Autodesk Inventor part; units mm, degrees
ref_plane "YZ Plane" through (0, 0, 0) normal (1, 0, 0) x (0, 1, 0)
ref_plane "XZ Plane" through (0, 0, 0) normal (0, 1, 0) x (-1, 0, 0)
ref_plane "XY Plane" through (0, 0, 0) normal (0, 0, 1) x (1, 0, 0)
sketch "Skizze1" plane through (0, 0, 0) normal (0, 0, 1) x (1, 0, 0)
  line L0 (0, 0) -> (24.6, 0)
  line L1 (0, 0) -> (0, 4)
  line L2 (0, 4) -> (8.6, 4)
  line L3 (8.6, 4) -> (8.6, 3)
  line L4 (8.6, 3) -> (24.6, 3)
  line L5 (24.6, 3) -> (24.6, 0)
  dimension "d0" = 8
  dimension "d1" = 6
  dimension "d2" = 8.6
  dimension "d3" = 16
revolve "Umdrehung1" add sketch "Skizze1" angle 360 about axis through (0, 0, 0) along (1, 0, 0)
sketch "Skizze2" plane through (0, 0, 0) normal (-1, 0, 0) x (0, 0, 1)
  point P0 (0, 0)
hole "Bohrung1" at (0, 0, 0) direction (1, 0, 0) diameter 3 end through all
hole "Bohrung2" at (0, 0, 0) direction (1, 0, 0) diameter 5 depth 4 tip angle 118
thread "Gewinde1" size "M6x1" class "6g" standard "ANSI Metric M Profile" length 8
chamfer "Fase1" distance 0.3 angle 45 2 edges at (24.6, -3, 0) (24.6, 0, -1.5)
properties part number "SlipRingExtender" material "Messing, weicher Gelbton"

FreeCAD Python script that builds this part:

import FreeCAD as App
import Part
import Sketcher
from FreeCAD import Vector


def edges_at(feature, points):
    """Names of the edges that pass closest to the given points."""
    edges = feature.Shape.Edges
    near = lambda p: min(range(len(edges)), key=lambda i: edges[i].distToShape(Part.Vertex(*p))[0])
    return sorted({f"Edge{near(p) + 1}" for p in points})


def add_polygon(sketch, points):
    """Adds a closed chain of lines whose ends are joined by coincident constraints."""
    first, n = sketch.GeometryCount, len(points)
    for a, b in zip(points, points[1:] + points[:1]):
        sketch.addGeometry(Part.LineSegment(App.Vector(*a, 0), App.Vector(*b, 0)), False)
    for i in range(n):
        sketch.addConstraint(Sketcher.Constraint("Coincident", first + i, 2, first + (i + 1) % n, 1))

doc = App.newDocument("Part")
body = doc.addObject("PartDesign::Body", "Body")

# Sketch on XY plane
sketch1 = doc.addObject("Sketcher::SketchObject", "Sketch")
body.addObject(sketch1)
sketch1.AttachmentSupport = (doc.XY_Plane, [""])
sketch1.MapMode = "FlatFace"
add_polygon(sketch1, [(0, 4), (0, 0), (24.6, 0), (24.6, 3), (8.6, 3), (8.6, 4)])  # lines 0-5
sketch1.addConstraint(Sketcher.Constraint("Vertical", 0))
sketch1.addConstraint(Sketcher.Constraint("Horizontal", 1))
sketch1.addConstraint(Sketcher.Constraint("Vertical", 2))
sketch1.addConstraint(Sketcher.Constraint("Horizontal", 3))
sketch1.addConstraint(Sketcher.Constraint("Vertical", 4))
sketch1.addConstraint(Sketcher.Constraint("Horizontal", 5))
sketch1.addConstraint(Sketcher.Constraint("Coincident", 0, 2, -1, 1))
sketch1.addConstraint(Sketcher.Constraint("DistanceX", 3, 2, 3, 1, 16.0))
sketch1.addConstraint(Sketcher.Constraint("DistanceX", 5, 2, 5, 1, 8.6))
sketch1.addConstraint(Sketcher.Constraint("DistanceY", 0, 2, 0, 1, 4.0))
sketch1.addConstraint(Sketcher.Constraint("DistanceY", 2, 1, 2, 2, 3.0))
revolution = doc.addObject("PartDesign::Revolution", "Revolution")
body.addObject(revolution)
revolution.Profile = sketch1
revolution.ReferenceAxis = (sketch1, ["H_Axis"])
revolution.Angle = 360

# Sketch on YZ plane
sketch2 = doc.addObject("Sketcher::SketchObject", "Sketch001")
body.addObject(sketch2)
sketch2.AttachmentSupport = (doc.YZ_Plane, [""])
sketch2.MapMode = "FlatFace"
sketch2.addGeometry(Part.Circle(Vector(0, 0, 0), Vector(0, 0, 1), 1.5), False)
sketch2.addConstraint(Sketcher.Constraint("Coincident", 0, 3, -1, 1))
sketch2.addConstraint(Sketcher.Constraint("Diameter", 0, 3.0))
doc.recompute()
hole = doc.addObject("PartDesign::Hole", "Hole")
body.addObject(hole)
hole.Profile = sketch2
hole.ThreadType = "None"
hole.Diameter = 3
hole.DepthType = "ThroughAll"
hole.Reversed = True

# Sketch on YZ plane
sketch3 = doc.addObject("Sketcher::SketchObject", "Sketch002")
body.addObject(sketch3)
sketch3.AttachmentSupport = (doc.YZ_Plane, [""])
sketch3.MapMode = "FlatFace"
sketch3.addGeometry(Part.Circle(Vector(0, 0, 0), Vector(0, 0, 1), 2.5), False)
sketch3.addConstraint(Sketcher.Constraint("Coincident", 0, 3, -1, 1))
sketch3.addConstraint(Sketcher.Constraint("Diameter", 0, 5.0))
doc.recompute()
hole2 = doc.addObject("PartDesign::Hole", "Hole001")
body.addObject(hole2)
hole2.Profile = sketch3
hole2.ThreadType = "None"
hole2.Diameter = 5
hole2.DepthType = "Dimension"
hole2.Depth = 4
hole2.DrillPoint = "Angled"
hole2.DrillPointAngle = 118
hole2.Reversed = True
doc.recompute()

chamfer = doc.addObject("PartDesign::Chamfer", "Chamfer")
body.addObject(chamfer)
chamfer.Base = (hole2, edges_at(hole2, [(24.6, -3, 0), (24.6, 0, -1.5)]))
chamfer.Size = 0.3

doc.recompute()
